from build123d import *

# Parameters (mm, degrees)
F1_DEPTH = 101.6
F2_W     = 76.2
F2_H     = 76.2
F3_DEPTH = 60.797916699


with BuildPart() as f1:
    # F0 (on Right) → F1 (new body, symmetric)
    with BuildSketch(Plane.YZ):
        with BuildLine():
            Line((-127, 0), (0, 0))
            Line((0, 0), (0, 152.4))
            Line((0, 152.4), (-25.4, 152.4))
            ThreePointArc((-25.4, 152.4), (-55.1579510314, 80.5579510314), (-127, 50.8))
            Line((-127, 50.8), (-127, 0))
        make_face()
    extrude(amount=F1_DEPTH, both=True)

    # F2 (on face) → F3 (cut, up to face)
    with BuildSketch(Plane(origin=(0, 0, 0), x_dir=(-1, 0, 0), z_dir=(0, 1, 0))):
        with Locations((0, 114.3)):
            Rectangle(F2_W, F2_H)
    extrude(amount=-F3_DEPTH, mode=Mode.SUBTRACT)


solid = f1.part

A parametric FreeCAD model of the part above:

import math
import FreeCAD as App
import Part
import Sketcher

V = App.Vector
Q = App.Units.Quantity

doc = App.newDocument("Part")
body = doc.addObject("PartDesign::Body", "Body")

# Sketch on YZ plane
sketch1 = doc.addObject("Sketcher::SketchObject", "Sketch")
body.addObject(sketch1)
sketch1.AttachmentSupport = (doc.YZ_Plane, [""])
sketch1.MapMode = "FlatFace"
sketch1.addGeometry([
    Part.LineSegment(V(-127, 0, 0), V(0, 0, 0)),  # 0
    Part.LineSegment(V(0, 0, 0), V(0, 152, 0)),  # 1
    Part.LineSegment(V(0, 152, 0), V(-25, 152, 0)),  # 2
    Part.ArcOfCircle(Part.Circle(V(-127, 152, 0), V(0, 0, 1), 102), math.radians(-90), math.radians(0)),  # 3
    Part.LineSegment(V(-127, 51, 0), V(-127, 0, 0)),  # 4
], False)
sketch1.addConstraint([
    Sketcher.Constraint("Coincident", 0, 2, 1, 1),
    Sketcher.Constraint("Coincident", 1, 2, 2, 1),
    Sketcher.Constraint("Coincident", 2, 2, 3, 2),
    Sketcher.Constraint("Coincident", 3, 1, 4, 1),
    Sketcher.Constraint("Coincident", 4, 2, 0, 1),
    Sketcher.Constraint("Horizontal", 0),
    Sketcher.Constraint("Vertical", 1),
    Sketcher.Constraint("Horizontal", 2),
    Sketcher.Constraint("Vertical", 4),
    Sketcher.Constraint("Coincident", 0, 2, -1, 1),
    Sketcher.Constraint("Horizontal", 3, 3, 1, 2),
    Sketcher.Constraint("Radius", 3, Q("4 in")),
    Sketcher.Constraint("DistanceX", 0, 1, 0, 2, Q("5 in")),
    Sketcher.Constraint("DistanceX", 2, 2, 2, 1, Q("1 in")),
    Sketcher.Constraint("DistanceY", 1, 1, 1, 2, Q("6 in")),
])
pad1 = doc.addObject("PartDesign::Pad", "Pad")
body.addObject(pad1)
pad1.Profile = sketch1
pad1.Length = Q("8 in")
pad1.Midplane = True

# Sketch on XZ plane
sketch2 = doc.addObject("Sketcher::SketchObject", "Sketch001")
body.addObject(sketch2)
sketch2.AttachmentSupport = (doc.XZ_Plane, [""])
sketch2.MapMode = "FlatFace"
sketch2.addGeometry([
    Part.LineSegment(V(38, 152, 0), V(38, 76, 0)),
    Part.LineSegment(V(38, 76, 0), V(-38, 76, 0)),
    Part.LineSegment(V(-38, 76, 0), V(-38, 152, 0)),
    Part.LineSegment(V(-38, 152, 0), V(38, 152, 0)),
], False)
sketch2.addConstraint([
    Sketcher.Constraint("Coincident", 0, 2, 1, 1),
    Sketcher.Constraint("Coincident", 1, 2, 2, 1),
    Sketcher.Constraint("Coincident", 2, 2, 3, 1),
    Sketcher.Constraint("Coincident", 3, 2, 0, 1),
    Sketcher.Constraint("Vertical", 0),
    Sketcher.Constraint("Horizontal", 1),
    Sketcher.Constraint("Vertical", 2),
    Sketcher.Constraint("Horizontal", 3),
    Sketcher.Constraint("Equal", 3, 0),
    Sketcher.Constraint("DistanceX", 1, 2, 1, 1, Q("3 in")),
    Sketcher.Constraint("DistanceY", -1, 1, 0, 2, Q("3 in")),
    Sketcher.Constraint("DistanceX", -1, 1, 0, 2, Q("1.5 in")),
])
pocket1 = doc.addObject("PartDesign::Pocket", "Pocket")
body.addObject(pocket1)
pocket1.Profile = sketch2
pocket1.Length = 60.797917
pocket1.Reversed = True

doc.recompute()
